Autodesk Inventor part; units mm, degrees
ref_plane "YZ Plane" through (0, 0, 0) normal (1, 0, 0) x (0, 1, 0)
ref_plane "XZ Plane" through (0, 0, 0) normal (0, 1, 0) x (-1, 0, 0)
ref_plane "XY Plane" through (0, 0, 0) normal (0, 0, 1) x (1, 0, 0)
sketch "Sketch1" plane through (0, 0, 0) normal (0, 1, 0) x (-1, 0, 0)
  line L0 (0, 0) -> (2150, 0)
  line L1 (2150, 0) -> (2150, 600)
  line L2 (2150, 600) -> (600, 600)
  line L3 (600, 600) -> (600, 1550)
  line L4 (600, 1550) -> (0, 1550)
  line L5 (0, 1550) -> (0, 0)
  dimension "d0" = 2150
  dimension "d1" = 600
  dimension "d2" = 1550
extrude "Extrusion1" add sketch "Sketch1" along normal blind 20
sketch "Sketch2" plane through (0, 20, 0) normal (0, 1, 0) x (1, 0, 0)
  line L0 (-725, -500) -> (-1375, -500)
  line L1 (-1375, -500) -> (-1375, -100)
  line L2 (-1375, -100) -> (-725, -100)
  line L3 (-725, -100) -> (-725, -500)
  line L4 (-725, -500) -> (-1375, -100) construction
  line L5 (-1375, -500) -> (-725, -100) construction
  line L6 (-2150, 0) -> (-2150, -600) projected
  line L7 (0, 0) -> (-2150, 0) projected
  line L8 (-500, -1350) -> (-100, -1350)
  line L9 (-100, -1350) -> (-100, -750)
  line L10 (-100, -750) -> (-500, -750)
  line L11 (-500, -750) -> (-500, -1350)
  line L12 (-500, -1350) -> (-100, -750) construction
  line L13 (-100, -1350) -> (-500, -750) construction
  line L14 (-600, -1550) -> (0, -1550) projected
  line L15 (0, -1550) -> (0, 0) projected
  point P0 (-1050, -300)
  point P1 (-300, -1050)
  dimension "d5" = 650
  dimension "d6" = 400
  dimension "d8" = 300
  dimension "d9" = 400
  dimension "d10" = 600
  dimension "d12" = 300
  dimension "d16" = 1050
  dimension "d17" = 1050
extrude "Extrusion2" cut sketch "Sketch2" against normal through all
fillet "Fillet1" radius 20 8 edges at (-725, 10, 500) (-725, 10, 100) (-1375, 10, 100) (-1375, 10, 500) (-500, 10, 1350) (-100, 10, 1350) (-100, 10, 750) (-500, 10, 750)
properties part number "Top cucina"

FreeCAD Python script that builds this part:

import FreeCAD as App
import Part
import Sketcher

V = App.Vector
Q = App.Units.Quantity


def edges_at(feature, points):
    """Names of the edges that pass closest to the given points."""
    edges = feature.Shape.Edges
    near = lambda p: min(range(len(edges)), key=lambda i: edges[i].distToShape(Part.Vertex(*p))[0])
    return sorted({f"Edge{near(p) + 1}" for p in points})

doc = App.newDocument("Part")
params = doc.addObject("Spreadsheet::Sheet", "Params")
for row, (alias, value) in enumerate([
    ("sketch1_width", "2150 mm"),
    ("sketch1_width2", "1550 mm"),
    ("pad1_length", "20 mm"),
    ("sketch2_width", "650 mm"),
    ("sketch2_width2", "400 mm"),
    ("sketch2_height", "600 mm"),
    ("fillet_radius", "20 mm"),
], start=1):
    params.set(f"A{row}", alias)
    params.set(f"B{row}", "=" + value)
    params.setAlias(f"B{row}", alias)

body = doc.addObject("PartDesign::Body", "Body")

sketch1 = doc.addObject("Sketcher::SketchObject", "Sketch")
body.addObject(sketch1)
sketch1.AttachmentSupport = (doc.XZ_Plane, [""])
sketch1.MapMode = "FlatFace"
sketch1.addGeometry(Part.LineSegment(V(0, 1550, 0), V(0, 0, 0)), False)
sketch1.addGeometry(Part.LineSegment(V(0, 0, 0), V(-2150, 0, 0)), False)
sketch1.addGeometry(Part.LineSegment(V(-2150, 0, 0), V(-2150, 600, 0)), False)
sketch1.addGeometry(Part.LineSegment(V(-2150, 600, 0), V(-600, 600, 0)), False)
sketch1.addGeometry(Part.LineSegment(V(-600, 600, 0), V(-600, 1550, 0)), False)
sketch1.addGeometry(Part.LineSegment(V(-600, 1550, 0), V(0, 1550, 0)), False)
sketch1.addConstraint(Sketcher.Constraint("Coincident", 0, 2, 1, 1))
sketch1.addConstraint(Sketcher.Constraint("Coincident", 1, 2, 2, 1))
sketch1.addConstraint(Sketcher.Constraint("Coincident", 2, 2, 3, 1))
sketch1.addConstraint(Sketcher.Constraint("Coincident", 3, 2, 4, 1))
sketch1.addConstraint(Sketcher.Constraint("Coincident", 4, 2, 5, 1))
sketch1.addConstraint(Sketcher.Constraint("Coincident", 5, 2, 0, 1))
sketch1.addConstraint(Sketcher.Constraint("Vertical", 0))
sketch1.addConstraint(Sketcher.Constraint("Horizontal", 1))
sketch1.addConstraint(Sketcher.Constraint("Vertical", 2))
sketch1.addConstraint(Sketcher.Constraint("Horizontal", 3))
sketch1.addConstraint(Sketcher.Constraint("Vertical", 4))
sketch1.addConstraint(Sketcher.Constraint("Horizontal", 5))
sketch1.addConstraint(Sketcher.Constraint("Coincident", 0, 2, -1, 1))
sketch1.addConstraint(Sketcher.Constraint("Equal", 3, 0))
sketch1.addConstraint(Sketcher.Constraint("Equal", 5, 2))
sketch1.addConstraint(Sketcher.Constraint("DistanceX", 1, 2, 1, 1, Q("2150 mm")))
sketch1.addConstraint(Sketcher.Constraint("DistanceX", 3, 1, 3, 2, Q("1550 mm")))
sketch1.setExpression("Constraints[15]", "Params.sketch1_width")
sketch1.setExpression("Constraints[16]", "Params.sketch1_width2")
pad1 = doc.addObject("PartDesign::Pad", "Pad")
body.addObject(pad1)
pad1.Profile = sketch1
pad1.setExpression("Length", "Params.pad1_length")
pad1.Reversed = True

sketch2 = doc.addObject("Sketcher::SketchObject", "Sketch001")
body.addObject(sketch2)
sketch2.AttachmentSupport = (doc.XZ_Plane, [""])
sketch2.MapMode = "FlatFace"
sketch2.AttachmentOffset = App.Placement(V(0, 0, -20), App.Rotation())
sketch2.addGeometry(Part.LineSegment(V(-1375, 500, 0), V(-725, 500, 0)), False)
sketch2.addGeometry(Part.LineSegment(V(-725, 500, 0), V(-725, 100, 0)), False)
sketch2.addGeometry(Part.LineSegment(V(-725, 100, 0), V(-1375, 100, 0)), False)
sketch2.addGeometry(Part.LineSegment(V(-1375, 100, 0), V(-1375, 500, 0)), False)
sketch2.addGeometry(Part.LineSegment(V(-500, 750, 0), V(-500, 1350, 0)), False)
sketch2.addGeometry(Part.LineSegment(V(-500, 1350, 0), V(-100, 1350, 0)), False)
sketch2.addGeometry(Part.LineSegment(V(-100, 1350, 0), V(-100, 750, 0)), False)
sketch2.addGeometry(Part.LineSegment(V(-100, 750, 0), V(-500, 750, 0)), False)
sketch2.addConstraint(Sketcher.Constraint("Coincident", 0, 2, 1, 1))
sketch2.addConstraint(Sketcher.Constraint("Coincident", 1, 2, 2, 1))
sketch2.addConstraint(Sketcher.Constraint("Coincident", 2, 2, 3, 1))
sketch2.addConstraint(Sketcher.Constraint("Coincident", 3, 2, 0, 1))
sketch2.addConstraint(Sketcher.Constraint("Coincident", 4, 2, 5, 1))
sketch2.addConstraint(Sketcher.Constraint("Coincident", 5, 2, 6, 1))
sketch2.addConstraint(Sketcher.Constraint("Coincident", 6, 2, 7, 1))
sketch2.addConstraint(Sketcher.Constraint("Coincident", 7, 2, 4, 1))
sketch2.addConstraint(Sketcher.Constraint("Horizontal", 0))
sketch2.addConstraint(Sketcher.Constraint("Vertical", 1))
sketch2.addConstraint(Sketcher.Constraint("Horizontal", 2))
sketch2.addConstraint(Sketcher.Constraint("Vertical", 3))
sketch2.addConstraint(Sketcher.Constraint("Vertical", 4))
sketch2.addConstraint(Sketcher.Constraint("Horizontal", 5))
sketch2.addConstraint(Sketcher.Constraint("Vertical", 6))
sketch2.addConstraint(Sketcher.Constraint("Horizontal", 7))
sketch2.addConstraint(Sketcher.Constraint("Equal", 7, 1))
sketch2.addConstraint(Sketcher.Constraint("DistanceX", 0, 1, 0, 2, Q("650 mm")))
sketch2.addConstraint(Sketcher.Constraint("DistanceX", 5, 1, 5, 2, Q("400 mm")))
sketch2.addConstraint(Sketcher.Constraint("DistanceY", 4, 1, 4, 2, Q("600 mm")))
sketch2.addConstraint(Sketcher.Constraint("DistanceY", 1, 2, 6, 2, Q("650 mm")))
sketch2.addConstraint(Sketcher.Constraint("DistanceX", 0, 2, -1, 1, Q("725 mm")))
sketch2.addConstraint(Sketcher.Constraint("DistanceY", -1, 1, 0, 2, Q("500 mm")))
sketch2.addConstraint(Sketcher.Constraint("DistanceX", 4, 2, -1, 1, Q("500 mm")))
sketch2.setExpression("Constraints[17]", "Params.sketch2_width")
sketch2.setExpression("Constraints[18]", "Params.sketch2_width2")
sketch2.setExpression("Constraints[19]", "Params.sketch2_height")
pocket1 = doc.addObject("PartDesign::Pocket", "Pocket")
body.addObject(pocket1)
pocket1.Profile = sketch2
pocket1.Type = "ThroughAll"
pocket1.Reversed = True
doc.recompute()

fillet = doc.addObject("PartDesign::Fillet", "Fillet")
body.addObject(fillet)
fillet.Base = (pocket1, edges_at(pocket1, [
    (-725, 10, 500),
    (-725, 10, 100),
    (-1375, 10, 100),
    (-1375, 10, 500),
    (-500, 10, 1350),
    (-100, 10, 1350),
    (-100, 10, 750),
    (-500, 10, 750),
]))
fillet.setExpression("Radius", "Params.fillet_radius")

doc.recompute()
